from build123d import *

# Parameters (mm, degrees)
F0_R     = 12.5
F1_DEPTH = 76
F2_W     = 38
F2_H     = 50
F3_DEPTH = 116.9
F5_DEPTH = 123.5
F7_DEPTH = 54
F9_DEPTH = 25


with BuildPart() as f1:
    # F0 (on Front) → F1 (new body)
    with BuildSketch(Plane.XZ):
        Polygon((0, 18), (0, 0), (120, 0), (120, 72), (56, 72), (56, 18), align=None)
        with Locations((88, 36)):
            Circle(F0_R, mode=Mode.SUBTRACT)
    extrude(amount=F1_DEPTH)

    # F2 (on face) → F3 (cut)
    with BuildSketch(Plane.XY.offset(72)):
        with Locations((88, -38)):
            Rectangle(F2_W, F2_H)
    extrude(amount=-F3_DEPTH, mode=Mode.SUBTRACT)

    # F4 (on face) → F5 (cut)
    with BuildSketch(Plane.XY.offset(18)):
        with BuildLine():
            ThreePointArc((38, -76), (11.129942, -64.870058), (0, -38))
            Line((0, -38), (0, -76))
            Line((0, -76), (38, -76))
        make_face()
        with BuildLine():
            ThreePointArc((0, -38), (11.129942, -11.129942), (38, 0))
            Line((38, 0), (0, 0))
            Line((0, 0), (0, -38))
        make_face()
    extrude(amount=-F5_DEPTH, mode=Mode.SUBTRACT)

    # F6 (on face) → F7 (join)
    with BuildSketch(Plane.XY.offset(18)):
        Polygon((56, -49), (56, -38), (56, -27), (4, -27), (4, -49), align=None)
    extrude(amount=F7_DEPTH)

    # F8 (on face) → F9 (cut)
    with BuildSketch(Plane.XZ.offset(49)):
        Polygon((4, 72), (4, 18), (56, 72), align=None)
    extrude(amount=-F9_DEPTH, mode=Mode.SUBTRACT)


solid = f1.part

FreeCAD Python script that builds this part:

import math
import FreeCAD as App
import Part
import Sketcher

V = App.Vector
Q = App.Units.Quantity

doc = App.newDocument("Part")
body = doc.addObject("PartDesign::Body", "Body")

sketch1 = doc.addObject("Sketcher::SketchObject", "Sketch")
body.addObject(sketch1)
sketch1.AttachmentSupport = (doc.XZ_Plane, [""])
sketch1.MapMode = "FlatFace"
sketch1.addGeometry([
    Part.LineSegment(V(0, 18, 0), V(0, 0, 0)),
    Part.LineSegment(V(0, 0, 0), V(120, 0, 0)),
    Part.LineSegment(V(120, 0, 0), V(120, 72, 0)),
    Part.LineSegment(V(120, 72, 0), V(56, 72, 0)),
    Part.LineSegment(V(56, 72, 0), V(56, 18, 0)),
    Part.LineSegment(V(56, 18, 0), V(0, 18, 0)),
    Part.Circle(V(88, 36, 0), V(0, 0, 1), 12.5),
], False)
sketch1.addConstraint([
    Sketcher.Constraint("Coincident", 0, 2, 1, 1),
    Sketcher.Constraint("Coincident", 1, 2, 2, 1),
    Sketcher.Constraint("Coincident", 2, 2, 3, 1),
    Sketcher.Constraint("Coincident", 3, 2, 4, 1),
    Sketcher.Constraint("Coincident", 4, 2, 5, 1),
    Sketcher.Constraint("Coincident", 5, 2, 0, 1),
    Sketcher.Constraint("Vertical", 0),
    Sketcher.Constraint("Horizontal", 1),
    Sketcher.Constraint("Vertical", 2),
    Sketcher.Constraint("Horizontal", 3),
    Sketcher.Constraint("Vertical", 4),
    Sketcher.Constraint("Horizontal", 5),
    Sketcher.Constraint("Coincident", 0, 2, -1, 1),
    Sketcher.Constraint("Diameter", 6, Q("25 mm")),
    Sketcher.Constraint("DistanceX", 1, 1, 1, 2, Q("120 mm")),
    Sketcher.Constraint("DistanceX", 3, 2, 3, 1, Q("64 mm")),
    Sketcher.Constraint("DistanceY", 0, 2, 0, 1, Q("18 mm")),
    Sketcher.Constraint("DistanceY", 2, 1, 2, 2, Q("72 mm")),
    Sketcher.Constraint("DistanceX", -1, 1, 6, 3, Q("88 mm")),
    Sketcher.Constraint("DistanceY", -1, 1, 6, 3, Q("36 mm")),
])
pad1 = doc.addObject("PartDesign::Pad", "Pad")
body.addObject(pad1)
pad1.Profile = sketch1
pad1.Length = 76

sketch2 = doc.addObject("Sketcher::SketchObject", "Sketch001")
body.addObject(sketch2)
sketch2.AttachmentSupport = (doc.XY_Plane, [""])
sketch2.MapMode = "FlatFace"
sketch2.AttachmentOffset = App.Placement(V(0, 0, 72), App.Rotation())
sketch2.addGeometry([
    Part.LineSegment(V(69, -13, 0), V(69, -63, 0)),
    Part.LineSegment(V(69, -63, 0), V(107, -63, 0)),
    Part.LineSegment(V(107, -63, 0), V(107, -13, 0)),
    Part.LineSegment(V(107, -13, 0), V(69, -13, 0)),
], False)
sketch2.addConstraint([
    Sketcher.Constraint("Coincident", 0, 2, 1, 1),
    Sketcher.Constraint("Coincident", 1, 2, 2, 1),
    Sketcher.Constraint("Coincident", 2, 2, 3, 1),
    Sketcher.Constraint("Coincident", 3, 2, 0, 1),
    Sketcher.Constraint("Vertical", 0),
    Sketcher.Constraint("Horizontal", 1),
    Sketcher.Constraint("Vertical", 2),
    Sketcher.Constraint("Horizontal", 3),
    Sketcher.Constraint("DistanceX", 1, 1, 1, 2, Q("38 mm")),
    Sketcher.Constraint("DistanceY", 0, 2, 0, 1, Q("50 mm")),
    Sketcher.Constraint("DistanceX", -1, 1, 0, 2, Q("69 mm")),
    Sketcher.Constraint("DistanceY", 0, 2, -1, 1, Q("63 mm")),
])
pocket1 = doc.addObject("PartDesign::Pocket", "Pocket")
body.addObject(pocket1)
pocket1.Profile = sketch2
pocket1.Length = 116.9

sketch3 = doc.addObject("Sketcher::SketchObject", "Sketch002")
body.addObject(sketch3)
sketch3.AttachmentSupport = (doc.XY_Plane, [""])
sketch3.MapMode = "FlatFace"
sketch3.AttachmentOffset = App.Placement(V(0, 0, 18), App.Rotation())
sketch3.addGeometry([
    Part.ArcOfCircle(Part.Circle(V(37.999999, -38.000001, 0), V(0, 0, 1), 37.999999), math.radians(179.999998), math.radians(270.000002)),
    Part.LineSegment(V(0, -38, 0), V(0, -76, 0)),
    Part.LineSegment(V(0, -76, 0), V(38, -76, 0)),
    Part.ArcOfCircle(Part.Circle(V(37.999999, -37.999999, 0), V(0, 0, 1), 37.999999), math.radians(89.999998), math.radians(180.000002)),
    Part.LineSegment(V(38, 0, 0), V(0, 0, 0)),
    Part.LineSegment(V(0, 0, 0), V(0, -38, 0)),
], False)
sketch3.addConstraint([
    Sketcher.Constraint("Tangent", 0, 1, 1, 1),
    Sketcher.Constraint("Coincident", 1, 2, 2, 1),
    Sketcher.Constraint("Tangent", 2, 2, 0, 2),
    Sketcher.Constraint("Tangent", 3, 1, 4, 1),
    Sketcher.Constraint("Coincident", 4, 2, 5, 1),
    Sketcher.Constraint("Tangent", 5, 2, 3, 2),
    Sketcher.Constraint("Vertical", 1),
    Sketcher.Constraint("Horizontal", 2),
    Sketcher.Constraint("Horizontal", 4),
    Sketcher.Constraint("Vertical", 5),
    Sketcher.Constraint("Coincident", 4, 2, -1, 1),
    Sketcher.Constraint("Coincident", 3, 3, 0, 3),
    Sketcher.Constraint("Equal", 0, 3),
    Sketcher.Constraint("Radius", 0, Q("37.999999 mm")),
])
pocket2 = doc.addObject("PartDesign::Pocket", "Pocket001")
body.addObject(pocket2)
pocket2.Profile = sketch3
pocket2.Length = 123.5

sketch4 = doc.addObject("Sketcher::SketchObject", "Sketch003")
body.addObject(sketch4)
sketch4.AttachmentSupport = (doc.XY_Plane, [""])
sketch4.MapMode = "FlatFace"
sketch4.AttachmentOffset = App.Placement(V(0, 0, 18), App.Rotation())
sketch4.addGeometry([
    Part.LineSegment(V(56, -49, 0), V(56, -27, 0)),
    Part.LineSegment(V(56, -27, 0), V(4, -27, 0)),
    Part.LineSegment(V(4, -27, 0), V(4, -49, 0)),
    Part.LineSegment(V(4, -49, 0), V(56, -49, 0)),
], False)
sketch4.addConstraint([
    Sketcher.Constraint("Coincident", 0, 2, 1, 1),
    Sketcher.Constraint("Coincident", 1, 2, 2, 1),
    Sketcher.Constraint("Coincident", 2, 2, 3, 1),
    Sketcher.Constraint("Coincident", 3, 2, 0, 1),
    Sketcher.Constraint("Vertical", 0),
    Sketcher.Constraint("Horizontal", 1),
    Sketcher.Constraint("Vertical", 2),
    Sketcher.Constraint("Horizontal", 3),
    Sketcher.Constraint("DistanceX", 1, 2, 1, 1, Q("52 mm")),
    Sketcher.Constraint("DistanceY", 0, 1, 0, 2, Q("22 mm")),
    Sketcher.Constraint("DistanceX", -1, 1, 0, 2, Q("56 mm")),
    Sketcher.Constraint("DistanceY", 0, 2, -1, 1, Q("27 mm")),
])
pad2 = doc.addObject("PartDesign::Pad", "Pad001")
body.addObject(pad2)
pad2.Profile = sketch4
pad2.Length = 54

sketch5 = doc.addObject("Sketcher::SketchObject", "Sketch004")
body.addObject(sketch5)
sketch5.AttachmentSupport = (doc.XZ_Plane, [""])
sketch5.MapMode = "FlatFace"
sketch5.AttachmentOffset = App.Placement(V(0, 0, 49), App.Rotation())
sketch5.addGeometry([
    Part.LineSegment(V(4, 72, 0), V(4, 18, 0)),
    Part.LineSegment(V(4, 18, 0), V(56, 72, 0)),
    Part.LineSegment(V(56, 72, 0), V(4, 72, 0)),
], False)
sketch5.addConstraint([
    Sketcher.Constraint("Coincident", 0, 2, 1, 1),
    Sketcher.Constraint("Coincident", 1, 2, 2, 1),
    Sketcher.Constraint("Coincident", 2, 2, 0, 1),
    Sketcher.Constraint("Vertical", 0),
    Sketcher.Constraint("Horizontal", 2),
    Sketcher.Constraint("DistanceX", 2, 2, 2, 1, Q("52 mm")),
    Sketcher.Constraint("DistanceY", 0, 2, 0, 1, Q("54 mm")),
    Sketcher.Constraint("DistanceX", -1, 1, 0, 2, Q("4 mm")),
    Sketcher.Constraint("DistanceY", -1, 1, 0, 2, Q("18 mm")),
])
pocket3 = doc.addObject("PartDesign::Pocket", "Pocket002")
body.addObject(pocket3)
pocket3.Profile = sketch5
pocket3.Length = 25

doc.recompute()
